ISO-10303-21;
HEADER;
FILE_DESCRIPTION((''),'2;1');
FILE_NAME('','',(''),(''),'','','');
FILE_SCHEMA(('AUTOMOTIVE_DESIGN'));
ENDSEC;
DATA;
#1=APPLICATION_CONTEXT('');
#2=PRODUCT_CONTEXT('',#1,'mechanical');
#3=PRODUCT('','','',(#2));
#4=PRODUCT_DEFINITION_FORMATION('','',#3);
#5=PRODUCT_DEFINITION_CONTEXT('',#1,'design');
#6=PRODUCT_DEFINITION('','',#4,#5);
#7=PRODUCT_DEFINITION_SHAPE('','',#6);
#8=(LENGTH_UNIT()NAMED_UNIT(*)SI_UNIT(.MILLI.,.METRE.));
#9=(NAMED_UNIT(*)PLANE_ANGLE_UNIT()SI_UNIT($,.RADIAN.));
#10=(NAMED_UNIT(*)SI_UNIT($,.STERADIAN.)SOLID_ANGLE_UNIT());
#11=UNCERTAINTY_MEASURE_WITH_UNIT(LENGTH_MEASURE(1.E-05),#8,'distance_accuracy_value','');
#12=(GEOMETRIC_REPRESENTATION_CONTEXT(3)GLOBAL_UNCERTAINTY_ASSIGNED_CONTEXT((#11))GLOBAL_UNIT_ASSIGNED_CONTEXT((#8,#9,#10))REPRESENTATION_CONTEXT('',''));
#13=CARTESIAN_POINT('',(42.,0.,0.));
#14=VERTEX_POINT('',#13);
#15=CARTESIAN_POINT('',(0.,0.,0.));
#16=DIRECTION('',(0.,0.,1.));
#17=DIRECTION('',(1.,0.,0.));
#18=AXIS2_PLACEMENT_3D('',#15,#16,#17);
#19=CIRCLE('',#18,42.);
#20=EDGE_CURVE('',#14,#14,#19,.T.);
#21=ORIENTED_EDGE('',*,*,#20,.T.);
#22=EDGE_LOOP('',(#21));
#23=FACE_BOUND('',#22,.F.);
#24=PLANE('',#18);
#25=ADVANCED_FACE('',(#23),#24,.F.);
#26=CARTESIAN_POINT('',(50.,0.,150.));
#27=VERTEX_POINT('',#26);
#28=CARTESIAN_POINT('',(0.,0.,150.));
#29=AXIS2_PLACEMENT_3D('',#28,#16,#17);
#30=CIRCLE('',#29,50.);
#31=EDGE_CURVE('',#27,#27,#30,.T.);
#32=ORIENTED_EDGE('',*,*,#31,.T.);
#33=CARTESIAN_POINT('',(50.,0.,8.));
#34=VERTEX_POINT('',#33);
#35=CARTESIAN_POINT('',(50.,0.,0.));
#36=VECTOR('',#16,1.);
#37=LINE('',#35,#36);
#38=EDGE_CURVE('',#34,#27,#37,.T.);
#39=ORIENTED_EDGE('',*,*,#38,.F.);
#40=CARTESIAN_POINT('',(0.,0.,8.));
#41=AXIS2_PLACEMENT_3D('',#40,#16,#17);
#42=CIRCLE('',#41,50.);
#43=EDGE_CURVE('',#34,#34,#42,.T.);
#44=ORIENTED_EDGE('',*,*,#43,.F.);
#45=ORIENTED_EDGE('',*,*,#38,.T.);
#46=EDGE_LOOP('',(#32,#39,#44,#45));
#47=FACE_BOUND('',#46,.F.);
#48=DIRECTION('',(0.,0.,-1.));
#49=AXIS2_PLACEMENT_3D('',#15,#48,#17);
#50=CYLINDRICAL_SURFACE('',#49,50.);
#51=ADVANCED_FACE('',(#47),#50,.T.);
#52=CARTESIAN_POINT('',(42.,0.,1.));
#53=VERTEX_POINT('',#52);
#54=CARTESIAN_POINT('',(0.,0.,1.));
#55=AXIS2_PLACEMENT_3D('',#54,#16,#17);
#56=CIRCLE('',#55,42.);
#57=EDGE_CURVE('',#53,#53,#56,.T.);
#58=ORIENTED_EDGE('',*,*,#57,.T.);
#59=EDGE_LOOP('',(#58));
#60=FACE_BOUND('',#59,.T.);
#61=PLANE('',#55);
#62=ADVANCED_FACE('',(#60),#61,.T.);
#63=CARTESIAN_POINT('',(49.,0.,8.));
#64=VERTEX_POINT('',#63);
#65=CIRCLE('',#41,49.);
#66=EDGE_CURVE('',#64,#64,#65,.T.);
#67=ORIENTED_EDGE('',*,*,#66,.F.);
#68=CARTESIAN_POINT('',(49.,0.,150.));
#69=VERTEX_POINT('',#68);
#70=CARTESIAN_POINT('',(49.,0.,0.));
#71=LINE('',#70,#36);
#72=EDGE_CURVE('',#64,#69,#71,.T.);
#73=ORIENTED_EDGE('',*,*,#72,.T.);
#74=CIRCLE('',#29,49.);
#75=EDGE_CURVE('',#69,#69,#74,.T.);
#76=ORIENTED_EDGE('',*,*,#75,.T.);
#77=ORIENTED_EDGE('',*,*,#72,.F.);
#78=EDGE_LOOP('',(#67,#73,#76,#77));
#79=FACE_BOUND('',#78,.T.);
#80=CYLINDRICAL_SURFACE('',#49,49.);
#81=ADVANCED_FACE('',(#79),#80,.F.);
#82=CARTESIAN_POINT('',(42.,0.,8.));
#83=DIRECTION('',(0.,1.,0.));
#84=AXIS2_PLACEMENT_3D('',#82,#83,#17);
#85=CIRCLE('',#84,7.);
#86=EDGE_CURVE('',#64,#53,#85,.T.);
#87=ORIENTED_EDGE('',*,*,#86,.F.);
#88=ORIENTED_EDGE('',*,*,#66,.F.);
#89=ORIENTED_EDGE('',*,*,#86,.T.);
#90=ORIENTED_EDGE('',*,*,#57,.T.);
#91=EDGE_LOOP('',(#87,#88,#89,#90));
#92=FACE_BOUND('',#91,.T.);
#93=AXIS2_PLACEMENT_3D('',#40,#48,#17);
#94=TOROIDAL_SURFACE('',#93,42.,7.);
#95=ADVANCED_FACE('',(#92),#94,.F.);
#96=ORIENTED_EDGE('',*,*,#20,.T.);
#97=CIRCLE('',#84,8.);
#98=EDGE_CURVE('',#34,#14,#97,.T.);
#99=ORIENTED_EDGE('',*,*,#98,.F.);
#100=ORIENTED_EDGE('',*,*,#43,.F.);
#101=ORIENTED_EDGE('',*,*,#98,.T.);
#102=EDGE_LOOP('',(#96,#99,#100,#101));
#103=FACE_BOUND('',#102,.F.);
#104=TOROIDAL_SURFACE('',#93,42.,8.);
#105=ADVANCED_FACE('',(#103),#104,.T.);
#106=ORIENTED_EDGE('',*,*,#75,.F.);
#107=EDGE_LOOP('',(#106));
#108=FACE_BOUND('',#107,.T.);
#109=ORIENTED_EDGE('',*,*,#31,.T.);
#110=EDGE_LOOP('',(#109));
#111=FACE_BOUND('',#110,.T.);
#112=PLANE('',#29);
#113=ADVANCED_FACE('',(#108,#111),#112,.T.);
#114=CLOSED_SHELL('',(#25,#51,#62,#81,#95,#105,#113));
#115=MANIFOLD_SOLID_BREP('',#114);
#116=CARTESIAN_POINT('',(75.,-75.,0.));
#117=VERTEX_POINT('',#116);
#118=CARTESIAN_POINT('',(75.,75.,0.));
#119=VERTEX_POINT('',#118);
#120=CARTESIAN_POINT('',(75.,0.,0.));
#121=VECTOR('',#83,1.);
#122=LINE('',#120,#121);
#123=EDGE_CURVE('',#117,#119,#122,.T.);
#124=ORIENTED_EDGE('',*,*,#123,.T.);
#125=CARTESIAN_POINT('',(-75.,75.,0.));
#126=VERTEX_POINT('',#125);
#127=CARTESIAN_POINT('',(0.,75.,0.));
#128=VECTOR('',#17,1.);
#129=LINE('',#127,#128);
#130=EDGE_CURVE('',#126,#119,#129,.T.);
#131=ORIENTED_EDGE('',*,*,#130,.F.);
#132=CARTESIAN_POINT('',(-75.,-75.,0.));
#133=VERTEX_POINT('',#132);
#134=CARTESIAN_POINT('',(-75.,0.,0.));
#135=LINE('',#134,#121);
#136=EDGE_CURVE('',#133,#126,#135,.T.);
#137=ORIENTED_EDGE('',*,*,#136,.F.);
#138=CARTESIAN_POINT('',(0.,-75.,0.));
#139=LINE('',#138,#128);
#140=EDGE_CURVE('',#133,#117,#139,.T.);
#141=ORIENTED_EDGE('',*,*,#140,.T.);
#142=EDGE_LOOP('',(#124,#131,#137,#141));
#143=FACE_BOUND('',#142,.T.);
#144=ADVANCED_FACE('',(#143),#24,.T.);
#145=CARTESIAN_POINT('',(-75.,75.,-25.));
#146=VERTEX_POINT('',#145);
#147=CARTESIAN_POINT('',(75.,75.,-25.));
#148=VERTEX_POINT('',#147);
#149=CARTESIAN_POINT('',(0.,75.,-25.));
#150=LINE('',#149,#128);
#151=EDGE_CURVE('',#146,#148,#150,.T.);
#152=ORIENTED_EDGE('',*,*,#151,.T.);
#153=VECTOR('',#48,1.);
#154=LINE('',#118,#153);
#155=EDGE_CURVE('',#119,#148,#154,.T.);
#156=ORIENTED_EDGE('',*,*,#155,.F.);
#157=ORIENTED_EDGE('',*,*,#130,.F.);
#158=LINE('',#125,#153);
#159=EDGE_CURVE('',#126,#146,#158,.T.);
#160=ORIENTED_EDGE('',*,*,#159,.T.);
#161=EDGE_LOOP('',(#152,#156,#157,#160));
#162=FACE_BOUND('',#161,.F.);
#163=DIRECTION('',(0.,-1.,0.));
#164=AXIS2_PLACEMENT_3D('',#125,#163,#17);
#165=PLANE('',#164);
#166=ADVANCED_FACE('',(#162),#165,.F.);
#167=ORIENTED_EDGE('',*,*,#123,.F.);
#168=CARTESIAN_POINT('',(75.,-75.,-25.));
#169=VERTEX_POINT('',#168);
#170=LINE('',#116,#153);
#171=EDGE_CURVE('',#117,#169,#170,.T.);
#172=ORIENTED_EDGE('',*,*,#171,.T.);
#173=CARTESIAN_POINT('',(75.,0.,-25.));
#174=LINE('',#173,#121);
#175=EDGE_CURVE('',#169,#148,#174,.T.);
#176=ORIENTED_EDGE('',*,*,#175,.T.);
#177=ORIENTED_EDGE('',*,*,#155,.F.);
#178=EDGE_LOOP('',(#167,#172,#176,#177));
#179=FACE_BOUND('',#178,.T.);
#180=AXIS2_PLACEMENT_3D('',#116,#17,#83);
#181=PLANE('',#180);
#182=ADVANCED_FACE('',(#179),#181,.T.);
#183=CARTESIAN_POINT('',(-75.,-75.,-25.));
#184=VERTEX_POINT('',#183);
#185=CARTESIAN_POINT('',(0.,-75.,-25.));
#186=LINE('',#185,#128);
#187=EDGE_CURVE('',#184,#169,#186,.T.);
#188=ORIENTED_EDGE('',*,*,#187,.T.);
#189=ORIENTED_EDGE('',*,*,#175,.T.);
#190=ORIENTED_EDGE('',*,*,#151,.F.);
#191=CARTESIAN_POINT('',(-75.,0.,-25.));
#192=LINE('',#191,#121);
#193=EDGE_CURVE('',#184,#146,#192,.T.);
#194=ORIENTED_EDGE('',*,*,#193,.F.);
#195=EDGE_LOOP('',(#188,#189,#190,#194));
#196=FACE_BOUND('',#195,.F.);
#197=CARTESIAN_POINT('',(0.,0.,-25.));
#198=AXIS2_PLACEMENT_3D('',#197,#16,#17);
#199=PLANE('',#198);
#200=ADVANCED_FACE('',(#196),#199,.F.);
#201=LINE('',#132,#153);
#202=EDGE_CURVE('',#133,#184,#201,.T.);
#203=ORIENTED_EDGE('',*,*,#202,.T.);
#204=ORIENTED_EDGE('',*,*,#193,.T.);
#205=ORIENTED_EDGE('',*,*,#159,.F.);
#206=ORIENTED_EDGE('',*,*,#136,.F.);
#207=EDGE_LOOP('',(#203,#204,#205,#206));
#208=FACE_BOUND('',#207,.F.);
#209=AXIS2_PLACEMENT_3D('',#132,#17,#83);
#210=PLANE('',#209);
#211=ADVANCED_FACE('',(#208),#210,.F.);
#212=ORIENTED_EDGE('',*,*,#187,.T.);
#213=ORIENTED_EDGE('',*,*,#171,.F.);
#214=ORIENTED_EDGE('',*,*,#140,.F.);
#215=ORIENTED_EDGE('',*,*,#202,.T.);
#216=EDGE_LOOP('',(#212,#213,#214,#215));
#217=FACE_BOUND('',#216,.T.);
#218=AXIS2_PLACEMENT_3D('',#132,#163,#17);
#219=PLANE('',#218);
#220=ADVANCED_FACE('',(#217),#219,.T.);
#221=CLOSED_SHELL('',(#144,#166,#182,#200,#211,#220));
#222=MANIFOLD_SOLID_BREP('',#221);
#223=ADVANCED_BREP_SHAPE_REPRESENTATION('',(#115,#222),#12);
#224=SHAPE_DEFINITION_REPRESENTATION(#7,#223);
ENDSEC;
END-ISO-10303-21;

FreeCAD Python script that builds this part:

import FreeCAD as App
import Part
import Sketcher
from FreeCAD import Vector


def edges_at(feature, points):
    """Names of the edges that pass closest to the given points."""
    edges = feature.Shape.Edges
    near = lambda p: min(range(len(edges)), key=lambda i: edges[i].distToShape(Part.Vertex(*p))[0])
    return sorted({f"Edge{near(p) + 1}" for p in points})


def faces_at(feature, points):
    """Names of the faces that lie closest to the given points."""
    faces = feature.Shape.Faces
    near = lambda p: min(range(len(faces)), key=lambda i: faces[i].distToShape(Part.Vertex(*p))[0])
    return sorted({f"Face{near(p) + 1}" for p in points})


def add_polygon(sketch, points):
    """Adds a closed chain of lines whose ends are joined by coincident constraints."""
    first, n = sketch.GeometryCount, len(points)
    for a, b in zip(points, points[1:] + points[:1]):
        sketch.addGeometry(Part.LineSegment(App.Vector(*a, 0), App.Vector(*b, 0)), False)
    for i in range(n):
        sketch.addConstraint(Sketcher.Constraint("Coincident", first + i, 2, first + (i + 1) % n, 1))

doc = App.newDocument("Part")
body = doc.addObject("PartDesign::Body", "Body")

sketch1 = doc.addObject("Sketcher::SketchObject", "Sketch")
body.addObject(sketch1)
sketch1.AttachmentSupport = (doc.XY_Plane, [""])
sketch1.MapMode = "FlatFace"
sketch1.addGeometry(Part.Circle(Vector(0, 0, 0), Vector(0, 0, 1), 50), False)
sketch1.addConstraint([
    Sketcher.Constraint("Coincident", 0, 3, -1, 1),
    Sketcher.Constraint("Diameter", 0, 100.0),
])
pad1 = doc.addObject("PartDesign::Pad", "Pad")
body.addObject(pad1)
pad1.Profile = sketch1
pad1.Length = 150
doc.recompute()

fillet = doc.addObject("PartDesign::Fillet", "Fillet")
body.addObject(fillet)
fillet.Base = (pad1, edges_at(pad1, [(-50, 0, 0)]))
fillet.Radius = 8
doc.recompute()

thickness = doc.addObject("PartDesign::Thickness", "Thickness")
body.addObject(thickness)
thickness.Base = (fillet, faces_at(fillet, [(0, 0, 150)]))
thickness.Value = 1
thickness.Reversed = True
thickness.Join = "Arc"
body2 = doc.addObject("PartDesign::Body", "Body001")

sketch2 = doc.addObject("Sketcher::SketchObject", "Sketch001")
body2.addObject(sketch2)
sketch2.AttachmentSupport = (doc.getObject("XY_Plane001"), [""])
sketch2.MapMode = "FlatFace"
add_polygon(sketch2, [(-75, 75), (-75, -75), (75, -75), (75, 75)])
sketch2.addConstraint([
    Sketcher.Constraint("Vertical", 0),
    Sketcher.Constraint("Horizontal", 1),
    Sketcher.Constraint("Vertical", 2),
    Sketcher.Constraint("Horizontal", 3),
    Sketcher.Constraint("Symmetric", 0, 2, 2, 2, -1, 1),
    Sketcher.Constraint("Equal", 3, 0),
    Sketcher.Constraint("DistanceX", 1, 1, 1, 2, 150.0),
])
pad2 = doc.addObject("PartDesign::Pad", "Pad001")
body2.addObject(pad2)
pad2.Profile = sketch2
pad2.Length = 25
pad2.Reversed = True

doc.recompute()
